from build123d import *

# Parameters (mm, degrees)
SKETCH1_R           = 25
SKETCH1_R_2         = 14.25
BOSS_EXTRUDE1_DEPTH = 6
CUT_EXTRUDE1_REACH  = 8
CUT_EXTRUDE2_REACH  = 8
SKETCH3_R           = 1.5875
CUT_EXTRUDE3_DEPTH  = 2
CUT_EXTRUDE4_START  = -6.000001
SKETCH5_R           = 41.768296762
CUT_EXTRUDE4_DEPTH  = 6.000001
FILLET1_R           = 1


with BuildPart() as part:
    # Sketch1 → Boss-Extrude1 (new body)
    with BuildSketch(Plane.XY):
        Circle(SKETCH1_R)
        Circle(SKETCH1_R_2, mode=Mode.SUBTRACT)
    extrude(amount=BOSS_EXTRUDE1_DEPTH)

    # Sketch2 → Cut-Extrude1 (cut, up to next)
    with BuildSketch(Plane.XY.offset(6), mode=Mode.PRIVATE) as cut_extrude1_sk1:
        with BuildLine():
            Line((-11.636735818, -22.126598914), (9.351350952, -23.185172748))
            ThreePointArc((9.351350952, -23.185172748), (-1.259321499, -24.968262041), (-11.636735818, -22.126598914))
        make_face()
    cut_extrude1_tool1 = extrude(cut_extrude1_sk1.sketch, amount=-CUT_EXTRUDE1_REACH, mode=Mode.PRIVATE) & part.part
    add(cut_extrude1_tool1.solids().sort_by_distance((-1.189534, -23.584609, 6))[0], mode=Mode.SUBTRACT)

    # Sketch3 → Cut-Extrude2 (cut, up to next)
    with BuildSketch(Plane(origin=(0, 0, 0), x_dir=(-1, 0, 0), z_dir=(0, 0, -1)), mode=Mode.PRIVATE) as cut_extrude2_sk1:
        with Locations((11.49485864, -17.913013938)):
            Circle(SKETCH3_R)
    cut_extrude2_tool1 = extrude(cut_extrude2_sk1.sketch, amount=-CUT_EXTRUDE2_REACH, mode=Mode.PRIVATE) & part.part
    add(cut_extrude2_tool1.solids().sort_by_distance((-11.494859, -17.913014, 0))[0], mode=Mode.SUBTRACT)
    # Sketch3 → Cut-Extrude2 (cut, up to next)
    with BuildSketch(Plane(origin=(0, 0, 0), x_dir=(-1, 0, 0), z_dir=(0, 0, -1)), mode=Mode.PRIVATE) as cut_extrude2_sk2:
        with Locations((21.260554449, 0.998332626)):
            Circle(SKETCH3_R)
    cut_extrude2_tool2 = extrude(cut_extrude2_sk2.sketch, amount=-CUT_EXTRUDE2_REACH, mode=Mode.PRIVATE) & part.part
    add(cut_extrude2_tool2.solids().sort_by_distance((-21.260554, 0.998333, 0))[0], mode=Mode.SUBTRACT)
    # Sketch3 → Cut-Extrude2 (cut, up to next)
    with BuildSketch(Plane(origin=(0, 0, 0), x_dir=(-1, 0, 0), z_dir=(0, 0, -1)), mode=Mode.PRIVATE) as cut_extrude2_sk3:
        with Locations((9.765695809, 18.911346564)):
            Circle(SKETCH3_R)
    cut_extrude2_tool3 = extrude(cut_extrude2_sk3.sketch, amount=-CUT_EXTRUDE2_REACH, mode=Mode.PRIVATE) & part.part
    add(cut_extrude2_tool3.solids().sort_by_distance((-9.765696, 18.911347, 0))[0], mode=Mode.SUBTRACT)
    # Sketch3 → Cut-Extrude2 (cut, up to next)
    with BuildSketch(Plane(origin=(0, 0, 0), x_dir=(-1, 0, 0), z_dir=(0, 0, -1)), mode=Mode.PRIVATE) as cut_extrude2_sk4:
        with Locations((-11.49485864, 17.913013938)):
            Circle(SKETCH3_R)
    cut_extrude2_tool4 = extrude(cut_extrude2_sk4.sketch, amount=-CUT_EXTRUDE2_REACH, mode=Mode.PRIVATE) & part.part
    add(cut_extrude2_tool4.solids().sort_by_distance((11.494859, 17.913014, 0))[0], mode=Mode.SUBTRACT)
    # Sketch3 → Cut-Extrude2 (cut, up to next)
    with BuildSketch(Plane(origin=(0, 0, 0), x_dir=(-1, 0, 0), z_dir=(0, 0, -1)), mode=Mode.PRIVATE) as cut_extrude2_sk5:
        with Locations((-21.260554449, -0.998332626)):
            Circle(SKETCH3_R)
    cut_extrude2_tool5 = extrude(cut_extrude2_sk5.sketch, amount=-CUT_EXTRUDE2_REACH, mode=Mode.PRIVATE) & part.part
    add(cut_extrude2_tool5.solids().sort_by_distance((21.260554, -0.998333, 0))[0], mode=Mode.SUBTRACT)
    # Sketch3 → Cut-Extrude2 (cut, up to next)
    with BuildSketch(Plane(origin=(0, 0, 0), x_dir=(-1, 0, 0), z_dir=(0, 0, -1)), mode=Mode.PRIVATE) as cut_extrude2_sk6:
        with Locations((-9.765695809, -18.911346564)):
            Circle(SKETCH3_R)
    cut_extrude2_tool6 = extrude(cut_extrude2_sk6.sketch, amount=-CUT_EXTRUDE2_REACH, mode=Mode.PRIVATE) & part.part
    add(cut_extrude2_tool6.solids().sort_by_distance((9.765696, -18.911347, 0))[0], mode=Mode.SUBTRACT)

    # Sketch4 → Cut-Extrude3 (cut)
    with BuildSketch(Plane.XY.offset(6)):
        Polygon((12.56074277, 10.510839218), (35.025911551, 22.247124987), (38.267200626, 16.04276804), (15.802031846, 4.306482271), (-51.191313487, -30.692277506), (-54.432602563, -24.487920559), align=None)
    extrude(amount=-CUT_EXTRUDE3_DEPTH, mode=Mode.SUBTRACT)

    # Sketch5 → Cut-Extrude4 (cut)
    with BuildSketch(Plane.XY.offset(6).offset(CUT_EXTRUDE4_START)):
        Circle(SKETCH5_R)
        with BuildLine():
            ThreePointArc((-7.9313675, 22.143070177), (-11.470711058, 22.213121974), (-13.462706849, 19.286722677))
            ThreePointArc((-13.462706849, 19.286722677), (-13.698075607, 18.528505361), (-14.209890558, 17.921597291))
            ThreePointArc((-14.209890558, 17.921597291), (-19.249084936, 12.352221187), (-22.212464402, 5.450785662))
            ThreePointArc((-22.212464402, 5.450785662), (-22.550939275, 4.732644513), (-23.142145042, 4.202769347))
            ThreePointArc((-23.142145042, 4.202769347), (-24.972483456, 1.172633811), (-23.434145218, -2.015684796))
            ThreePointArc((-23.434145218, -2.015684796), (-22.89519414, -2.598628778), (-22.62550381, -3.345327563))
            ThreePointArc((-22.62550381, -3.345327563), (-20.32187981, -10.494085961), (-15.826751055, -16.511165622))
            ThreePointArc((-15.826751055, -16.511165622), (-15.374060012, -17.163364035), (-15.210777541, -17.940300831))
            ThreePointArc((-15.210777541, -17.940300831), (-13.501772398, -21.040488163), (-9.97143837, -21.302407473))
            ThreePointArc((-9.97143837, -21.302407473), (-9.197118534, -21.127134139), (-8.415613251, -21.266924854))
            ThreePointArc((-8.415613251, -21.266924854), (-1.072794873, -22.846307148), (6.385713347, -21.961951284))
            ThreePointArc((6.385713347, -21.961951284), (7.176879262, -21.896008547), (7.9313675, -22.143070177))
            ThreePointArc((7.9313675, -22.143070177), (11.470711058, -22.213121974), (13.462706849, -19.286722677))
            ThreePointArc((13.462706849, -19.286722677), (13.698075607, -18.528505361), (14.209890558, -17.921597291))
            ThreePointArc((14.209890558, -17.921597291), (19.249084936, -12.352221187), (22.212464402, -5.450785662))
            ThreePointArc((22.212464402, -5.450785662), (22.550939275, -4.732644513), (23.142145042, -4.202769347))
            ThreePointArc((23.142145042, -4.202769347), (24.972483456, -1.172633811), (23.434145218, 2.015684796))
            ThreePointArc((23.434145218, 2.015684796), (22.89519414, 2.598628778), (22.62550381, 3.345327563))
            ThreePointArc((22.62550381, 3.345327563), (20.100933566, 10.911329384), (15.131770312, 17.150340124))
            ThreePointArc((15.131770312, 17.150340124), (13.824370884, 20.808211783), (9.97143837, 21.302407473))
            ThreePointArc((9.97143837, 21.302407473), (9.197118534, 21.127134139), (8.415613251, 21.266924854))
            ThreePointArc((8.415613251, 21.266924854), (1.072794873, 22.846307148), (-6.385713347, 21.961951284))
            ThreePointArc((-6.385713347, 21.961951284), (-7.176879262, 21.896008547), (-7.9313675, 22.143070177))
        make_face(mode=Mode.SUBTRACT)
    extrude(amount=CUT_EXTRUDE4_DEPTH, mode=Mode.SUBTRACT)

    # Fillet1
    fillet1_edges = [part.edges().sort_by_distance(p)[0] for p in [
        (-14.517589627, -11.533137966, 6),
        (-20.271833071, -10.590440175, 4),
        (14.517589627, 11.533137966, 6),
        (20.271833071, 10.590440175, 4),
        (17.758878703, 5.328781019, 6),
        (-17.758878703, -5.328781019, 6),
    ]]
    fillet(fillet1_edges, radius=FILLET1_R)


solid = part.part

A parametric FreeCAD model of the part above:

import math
import FreeCAD as App
import Part
import Sketcher
from FreeCAD import Vector


def edges_at(feature, points):
    """Names of the edges that pass closest to the given points."""
    edges = feature.Shape.Edges
    near = lambda p: min(range(len(edges)), key=lambda i: edges[i].distToShape(Part.Vertex(*p))[0])
    return sorted({f"Edge{near(p) + 1}" for p in points})


def add_polygon(sketch, points):
    """Adds a closed chain of lines whose ends are joined by coincident constraints."""
    first, n = sketch.GeometryCount, len(points)
    for a, b in zip(points, points[1:] + points[:1]):
        sketch.addGeometry(Part.LineSegment(App.Vector(*a, 0), App.Vector(*b, 0)), False)
    for i in range(n):
        sketch.addConstraint(Sketcher.Constraint("Coincident", first + i, 2, first + (i + 1) % n, 1))

doc = App.newDocument("Part")
body = doc.addObject("PartDesign::Body", "Body")

# Sketch on XY plane
sketch1 = body.newObject("Sketcher::SketchObject", "Sketch")
sketch1.AttachmentSupport = (doc.getObject("XY_Plane"), [""])
sketch1.MapMode = "FlatFace"
sketch1.addGeometry([
    Part.Circle(Vector(0, 0, 0), Vector(0, 0, 1), 25),
    Part.Circle(Vector(0, 0, 0), Vector(0, 0, 1), 14),
], False)
sketch1.addConstraint([
    Sketcher.Constraint("Coincident", 0, 3, -1, 1),
    Sketcher.Constraint("Coincident", 1, 3, -1, 1),
    Sketcher.Constraint("Diameter", 0, 50.0),
    Sketcher.Constraint("Diameter", 1, 28.5),
])
pad1 = body.newObject("PartDesign::Pad", "Pad")
pad1.Profile = sketch1
pad1.Length = 6

# Sketch on XY plane
sketch2 = body.newObject("Sketcher::SketchObject", "Sketch001")
sketch2.AttachmentSupport = (doc.getObject("XY_Plane"), [""])
sketch2.MapMode = "FlatFace"
sketch2.AttachmentOffset = App.Placement(Vector(0, 0, 6), App.Rotation())
sketch2.addGeometry([
    Part.LineSegment(Vector(9, -23, 0), Vector(-12, -22, 0)),
    Part.ArcOfCircle(Part.Circle(Vector(0, 0, 0), Vector(0, 0, 1), 25), math.radians(-118), math.radians(-68)),
], False)
sketch2.addConstraint([
    Sketcher.Constraint("Coincident", 0, 1, 1, 2),
    Sketcher.Constraint("Coincident", 1, 1, 0, 2),
    Sketcher.Constraint("Coincident", 1, 3, -1, 1),
    Sketcher.Constraint("Radius", 1, 25.0),
    Sketcher.Constraint("DistanceY", 1, 1, -1, 1, 22.126599),
    Sketcher.Constraint("DistanceX", -1, 1, 0, 1, 9.351351),
])
pocket1 = body.newObject("PartDesign::Pocket", "Pocket")
pocket1.Profile = sketch2
pocket1.Type = "UpToFirst"

# Sketch on XY plane
sketch3 = body.newObject("Sketcher::SketchObject", "Sketch002")
sketch3.AttachmentSupport = (doc.getObject("XY_Plane"), [""])
sketch3.MapMode = "FlatFace"
sketch3.addGeometry(Part.Circle(Vector(-11.5, -17.9, 0), Vector(0, 0, 1), 1.6), False)
sketch3.addConstraint([
    Sketcher.Constraint("Diameter", 0, 3.175),
    Sketcher.Constraint("DistanceX", 0, 3, -1, 1, 11.494859),
    Sketcher.Constraint("DistanceY", 0, 3, -1, 1, 17.913014),
])
pocket2 = body.newObject("PartDesign::Pocket", "Pocket001")
pocket2.Profile = sketch3
pocket2.Type = "UpToFirst"
pocket2.Reversed = True

# Sketch on XY plane
sketch4 = body.newObject("Sketcher::SketchObject", "Sketch003")
sketch4.AttachmentSupport = (doc.getObject("XY_Plane"), [""])
sketch4.MapMode = "FlatFace"
sketch4.addGeometry(Part.Circle(Vector(-21.3, 1, 0), Vector(0, 0, 1), 1.6), False)
sketch4.addConstraint([
    Sketcher.Constraint("Diameter", 0, 3.175),
    Sketcher.Constraint("DistanceX", 0, 3, -1, 1, 21.260554),
    Sketcher.Constraint("DistanceY", -1, 1, 0, 3, 0.998333),
])
pocket3 = body.newObject("PartDesign::Pocket", "Pocket002")
pocket3.Profile = sketch4
pocket3.Type = "UpToFirst"
pocket3.Reversed = True

# Sketch on XY plane
sketch5 = body.newObject("Sketcher::SketchObject", "Sketch004")
sketch5.AttachmentSupport = (doc.getObject("XY_Plane"), [""])
sketch5.MapMode = "FlatFace"
sketch5.addGeometry(Part.Circle(Vector(-9.8, 18.9, 0), Vector(0, 0, 1), 1.6), False)
sketch5.addConstraint([
    Sketcher.Constraint("Diameter", 0, 3.175),
    Sketcher.Constraint("DistanceX", 0, 3, -1, 1, 9.765696),
    Sketcher.Constraint("DistanceY", -1, 1, 0, 3, 18.911347),
])
pocket4 = body.newObject("PartDesign::Pocket", "Pocket003")
pocket4.Profile = sketch5
pocket4.Type = "UpToFirst"
pocket4.Reversed = True

# Sketch on XY plane
sketch6 = body.newObject("Sketcher::SketchObject", "Sketch005")
sketch6.AttachmentSupport = (doc.getObject("XY_Plane"), [""])
sketch6.MapMode = "FlatFace"
sketch6.addGeometry(Part.Circle(Vector(11.5, 17.9, 0), Vector(0, 0, 1), 1.6), False)
sketch6.addConstraint([
    Sketcher.Constraint("Diameter", 0, 3.175),
    Sketcher.Constraint("DistanceX", -1, 1, 0, 3, 11.494859),
    Sketcher.Constraint("DistanceY", -1, 1, 0, 3, 17.913014),
])
pocket5 = body.newObject("PartDesign::Pocket", "Pocket004")
pocket5.Profile = sketch6
pocket5.Type = "UpToFirst"
pocket5.Reversed = True

# Sketch on XY plane
sketch7 = body.newObject("Sketcher::SketchObject", "Sketch006")
sketch7.AttachmentSupport = (doc.getObject("XY_Plane"), [""])
sketch7.MapMode = "FlatFace"
sketch7.addGeometry(Part.Circle(Vector(21.3, -1, 0), Vector(0, 0, 1), 1.6), False)
sketch7.addConstraint([
    Sketcher.Constraint("Diameter", 0, 3.175),
    Sketcher.Constraint("DistanceX", -1, 1, 0, 3, 21.260554),
    Sketcher.Constraint("DistanceY", 0, 3, -1, 1, 0.998333),
])
pocket6 = body.newObject("PartDesign::Pocket", "Pocket005")
pocket6.Profile = sketch7
pocket6.Type = "UpToFirst"
pocket6.Reversed = True

# Sketch on XY plane
sketch8 = body.newObject("Sketcher::SketchObject", "Sketch007")
sketch8.AttachmentSupport = (doc.getObject("XY_Plane"), [""])
sketch8.MapMode = "FlatFace"
sketch8.addGeometry(Part.Circle(Vector(9.8, -18.9, 0), Vector(0, 0, 1), 1.6), False)
sketch8.addConstraint([
    Sketcher.Constraint("Diameter", 0, 3.175),
    Sketcher.Constraint("DistanceX", -1, 1, 0, 3, 9.765696),
    Sketcher.Constraint("DistanceY", 0, 3, -1, 1, 18.911347),
])
pocket7 = body.newObject("PartDesign::Pocket", "Pocket006")
pocket7.Profile = sketch8
pocket7.Type = "UpToFirst"
pocket7.Reversed = True

# Sketch on XY plane
sketch9 = body.newObject("Sketcher::SketchObject", "Sketch008")
sketch9.AttachmentSupport = (doc.getObject("XY_Plane"), [""])
sketch9.MapMode = "FlatFace"
sketch9.AttachmentOffset = App.Placement(Vector(0, 0, 6), App.Rotation())
add_polygon(sketch9, [(35, 22), (13, 11), (-54, -24), (-51, -31), (16, 4), (38, 16)])  # lines 0-5
sketch9.addConstraint([
    Sketcher.Constraint("Parallel", 0, 1),
    Sketcher.Constraint("Perpendicular", 1, 2),
    Sketcher.Constraint("Perpendicular", 2, 3),
    Sketcher.Constraint("Parallel", 3, 4),
    Sketcher.Constraint("Perpendicular", 4, 5),
    Sketcher.Constraint("Equal", 1, 3),
    Sketcher.Constraint("Distance", 2, 7.0),
    Sketcher.Constraint("DistanceX", -1, 1, 4, 2, 38.267201),
    Sketcher.Constraint("Distance", 0, 25.346089),
    Sketcher.Constraint("DistanceY", -1, 1, 0, 2, 10.510839),
    Sketcher.Constraint("DistanceY", 1, 2, -1, 1, 24.487921),
    Sketcher.Constraint("DistanceX", -1, 1, 3, 2, 15.802032),
])
pocket8 = body.newObject("PartDesign::Pocket", "Pocket007")
pocket8.Profile = sketch9
pocket8.Length = 2

# Sketch on XY plane
sketch10 = body.newObject("Sketcher::SketchObject", "Sketch009")
sketch10.AttachmentSupport = (doc.getObject("XY_Plane"), [""])
sketch10.MapMode = "FlatFace"
sketch10.AttachmentOffset = App.Placement(Vector(0, 0, -0.000001), App.Rotation())
sketch10.addGeometry([
    Part.Circle(Vector(0, 0, 0), Vector(0, 0, 1), 41.8),  # 0
    Part.ArcOfCircle(Part.Circle(Vector(-9.8, 18.9, 0), Vector(0, 0, 1), 3.7), math.radians(60), math.radians(174)),  # 1
    Part.ArcOfCircle(Part.Circle(Vector(-6.9, 23.9, 0), Vector(0, 0, 1), 2), math.radians(-120), math.radians(-74)),  # 2
    Part.ArcOfCircle(Part.Circle(Vector(0, 0, 0), Vector(0, 0, 1), 22.9), math.radians(68), math.radians(106)),  # 3
    Part.ArcOfCircle(Part.Circle(Vector(9.2, 23.1, 0), Vector(0, 0, 1), 2), math.radians(-112), math.radians(-66)),  # 4
    Part.ArcOfCircle(Part.Circle(Vector(11.5, 17.9, 0), Vector(0, 0, 1), 3.7), math.radians(-12), math.radians(114)),  # 5
    Part.ArcOfCircle(Part.Circle(Vector(0, 0, 0), Vector(0, 0, 1), 22.9), math.radians(8), math.radians(49)),  # 6
    Part.ArcOfCircle(Part.Circle(Vector(24.6, 3.6, 0), Vector(0, 0, 1), 2), math.radians(-172), math.radians(-126)),  # 7
    Part.ArcOfCircle(Part.Circle(Vector(21.3, -1, 0), Vector(0, 0, 1), 3.7), math.radians(-60), math.radians(54)),  # 8
    Part.ArcOfCircle(Part.Circle(Vector(24.2, -5.9, 0), Vector(0, 0, 1), 2), math.radians(120), math.radians(166)),  # 9
    Part.ArcOfCircle(Part.Circle(Vector(0, 0, 0), Vector(0, 0, 1), 22.9), math.radians(-52), math.radians(-14)),  # 10
    Part.ArcOfCircle(Part.Circle(Vector(15.5, -19.5, 0), Vector(0, 0, 1), 2), math.radians(128), math.radians(174)),  # 11
    Part.ArcOfCircle(Part.Circle(Vector(9.8, -18.9, 0), Vector(0, 0, 1), 3.7), math.radians(-120), math.radians(-6)),  # 12
    Part.ArcOfCircle(Part.Circle(Vector(6.9, -23.9, 0), Vector(0, 0, 1), 2), math.radians(60), math.radians(106)),  # 13
    Part.ArcOfCircle(Part.Circle(Vector(0, 0, 0), Vector(0, 0, 1), 22.9), math.radians(-112), math.radians(-74)),  # 14
    Part.ArcOfCircle(Part.Circle(Vector(-9.2, -23.1, 0), Vector(0, 0, 1), 2), math.radians(68), math.radians(114)),  # 15
    Part.ArcOfCircle(Part.Circle(Vector(-11.5, -17.9, 0), Vector(0, 0, 1), 3.7), math.radians(-180), math.radians(-66)),  # 16
    Part.ArcOfCircle(Part.Circle(Vector(-17.2, -18, 0), Vector(0, 0, 1), 2), math.radians(0), math.radians(46)),  # 17
    Part.ArcOfCircle(Part.Circle(Vector(0, 0, 0), Vector(0, 0, 1), 22.9), math.radians(-172), math.radians(-134)),  # 18
    Part.ArcOfCircle(Part.Circle(Vector(-24.6, -3.6, 0), Vector(0, 0, 1), 2), math.radians(8), math.radians(54)),  # 19
    Part.ArcOfCircle(Part.Circle(Vector(-21.3, 1, 0), Vector(0, 0, 1), 3.7), math.radians(120), math.radians(234)),  # 20
    Part.ArcOfCircle(Part.Circle(Vector(-24.2, 5.9, 0), Vector(0, 0, 1), 2), math.radians(-60), math.radians(-14)),  # 21
    Part.ArcOfCircle(Part.Circle(Vector(0, 0, 0), Vector(0, 0, 1), 22.9), math.radians(128), math.radians(166)),  # 22
    Part.ArcOfCircle(Part.Circle(Vector(-15.5, 19.5, 0), Vector(0, 0, 1), 2), math.radians(-52), math.radians(-6)),  # 23
], False)
sketch10.addConstraint([
    Sketcher.Constraint("Tangent", 1, 1, 2, 1),
    Sketcher.Constraint("Tangent", 2, 2, 3, 2),
    Sketcher.Constraint("Tangent", 3, 1, 4, 1),
    Sketcher.Constraint("Tangent", 4, 2, 5, 2),
    Sketcher.Constraint("Coincident", 5, 1, 6, 2),
    Sketcher.Constraint("Tangent", 6, 1, 7, 1),
    Sketcher.Constraint("Tangent", 7, 2, 8, 2),
    Sketcher.Constraint("Tangent", 8, 1, 9, 1),
    Sketcher.Constraint("Tangent", 9, 2, 10, 2),
    Sketcher.Constraint("Tangent", 10, 1, 11, 1),
    Sketcher.Constraint("Tangent", 11, 2, 12, 2),
    Sketcher.Constraint("Tangent", 12, 1, 13, 1),
    Sketcher.Constraint("Tangent", 13, 2, 14, 2),
    Sketcher.Constraint("Tangent", 14, 1, 15, 1),
    Sketcher.Constraint("Tangent", 15, 2, 16, 2),
    Sketcher.Constraint("Tangent", 16, 1, 17, 1),
    Sketcher.Constraint("Tangent", 17, 2, 18, 2),
    Sketcher.Constraint("Tangent", 18, 1, 19, 1),
    Sketcher.Constraint("Tangent", 19, 2, 20, 2),
    Sketcher.Constraint("Tangent", 20, 1, 21, 1),
    Sketcher.Constraint("Tangent", 21, 2, 22, 2),
    Sketcher.Constraint("Tangent", 22, 1, 23, 1),
    Sketcher.Constraint("Tangent", 23, 2, 1, 2),
    Sketcher.Constraint("Coincident", 0, 3, -1, 1),
    Sketcher.Constraint("Coincident", 3, 3, -1, 1),
    Sketcher.Constraint("Coincident", 6, 3, -1, 1),
    Sketcher.Constraint("Coincident", 10, 3, -1, 1),
    Sketcher.Constraint("Coincident", 14, 3, -1, 1),
    Sketcher.Constraint("Coincident", 18, 3, -1, 1),
    Sketcher.Constraint("Coincident", 22, 3, -1, 1),
    Sketcher.Constraint("Equal", 2, 4),
    Sketcher.Constraint("Equal", 1, 5),
    Sketcher.Constraint("Equal", 3, 6),
    Sketcher.Constraint("Equal", 4, 7),
    Sketcher.Constraint("Equal", 5, 8),
    Sketcher.Constraint("Equal", 7, 9),
    Sketcher.Constraint("Equal", 6, 10),
    Sketcher.Constraint("Equal", 9, 11),
    Sketcher.Constraint("Equal", 8, 12),
    Sketcher.Constraint("Equal", 11, 13),
    Sketcher.Constraint("Equal", 10, 14),
    Sketcher.Constraint("Equal", 13, 15),
    Sketcher.Constraint("Equal", 12, 16),
    Sketcher.Constraint("Equal", 15, 17),
    Sketcher.Constraint("Equal", 14, 18),
    Sketcher.Constraint("Equal", 17, 19),
    Sketcher.Constraint("Equal", 16, 20),
    Sketcher.Constraint("Equal", 19, 21),
    Sketcher.Constraint("Equal", 18, 22),
    Sketcher.Constraint("Equal", 21, 23),
    Sketcher.Constraint("Symmetric", 1, 3, 12, 3, -1, 1),
    Sketcher.Constraint("Symmetric", 5, 3, 16, 3, -1, 1),
    Sketcher.Constraint("Symmetric", 8, 3, 20, 3, -1, 1),
    Sketcher.Constraint("Radius", 2, 2.0),
    Sketcher.Constraint("Radius", 1, 3.716019),
    Sketcher.Constraint("Radius", 3, 22.871481),
    Sketcher.Constraint("Diameter", 0, 83.536594),
    Sketcher.Constraint("DistanceX", 8, 1, 7, 2, 0.292),
    Sketcher.Constraint("DistanceY", 16, 1, -1, 1, 17.940301),
    Sketcher.Constraint("DistanceY", 5, 3, 4, 3, 5.2136),
    Sketcher.Constraint("DistanceX", 2, 3, 2, 2, 0.5584),
    Sketcher.Constraint("DistanceY", -1, 1, 7, 3, 3.63786),
    Sketcher.Constraint("DistanceY", -1, 1, 1, 1, 22.14307),
])
pocket9 = body.newObject("PartDesign::Pocket", "Pocket008")
pocket9.Profile = sketch10
pocket9.Length = 6.000001
pocket9.Reversed = True
doc.recompute()

fillet = body.newObject("PartDesign::Fillet", "Fillet")
fillet.Base = (pocket9, edges_at(pocket9, [
    (-14.518, -11.533, 6),
    (-20.272, -10.59, 4),
    (15.487, 12.039, 6),
    (20.272, 10.59, 4),
    (18.728, 5.835, 6),
    (-17.759, -5.329, 6),
]))
fillet.Radius = 1

doc.recompute()
